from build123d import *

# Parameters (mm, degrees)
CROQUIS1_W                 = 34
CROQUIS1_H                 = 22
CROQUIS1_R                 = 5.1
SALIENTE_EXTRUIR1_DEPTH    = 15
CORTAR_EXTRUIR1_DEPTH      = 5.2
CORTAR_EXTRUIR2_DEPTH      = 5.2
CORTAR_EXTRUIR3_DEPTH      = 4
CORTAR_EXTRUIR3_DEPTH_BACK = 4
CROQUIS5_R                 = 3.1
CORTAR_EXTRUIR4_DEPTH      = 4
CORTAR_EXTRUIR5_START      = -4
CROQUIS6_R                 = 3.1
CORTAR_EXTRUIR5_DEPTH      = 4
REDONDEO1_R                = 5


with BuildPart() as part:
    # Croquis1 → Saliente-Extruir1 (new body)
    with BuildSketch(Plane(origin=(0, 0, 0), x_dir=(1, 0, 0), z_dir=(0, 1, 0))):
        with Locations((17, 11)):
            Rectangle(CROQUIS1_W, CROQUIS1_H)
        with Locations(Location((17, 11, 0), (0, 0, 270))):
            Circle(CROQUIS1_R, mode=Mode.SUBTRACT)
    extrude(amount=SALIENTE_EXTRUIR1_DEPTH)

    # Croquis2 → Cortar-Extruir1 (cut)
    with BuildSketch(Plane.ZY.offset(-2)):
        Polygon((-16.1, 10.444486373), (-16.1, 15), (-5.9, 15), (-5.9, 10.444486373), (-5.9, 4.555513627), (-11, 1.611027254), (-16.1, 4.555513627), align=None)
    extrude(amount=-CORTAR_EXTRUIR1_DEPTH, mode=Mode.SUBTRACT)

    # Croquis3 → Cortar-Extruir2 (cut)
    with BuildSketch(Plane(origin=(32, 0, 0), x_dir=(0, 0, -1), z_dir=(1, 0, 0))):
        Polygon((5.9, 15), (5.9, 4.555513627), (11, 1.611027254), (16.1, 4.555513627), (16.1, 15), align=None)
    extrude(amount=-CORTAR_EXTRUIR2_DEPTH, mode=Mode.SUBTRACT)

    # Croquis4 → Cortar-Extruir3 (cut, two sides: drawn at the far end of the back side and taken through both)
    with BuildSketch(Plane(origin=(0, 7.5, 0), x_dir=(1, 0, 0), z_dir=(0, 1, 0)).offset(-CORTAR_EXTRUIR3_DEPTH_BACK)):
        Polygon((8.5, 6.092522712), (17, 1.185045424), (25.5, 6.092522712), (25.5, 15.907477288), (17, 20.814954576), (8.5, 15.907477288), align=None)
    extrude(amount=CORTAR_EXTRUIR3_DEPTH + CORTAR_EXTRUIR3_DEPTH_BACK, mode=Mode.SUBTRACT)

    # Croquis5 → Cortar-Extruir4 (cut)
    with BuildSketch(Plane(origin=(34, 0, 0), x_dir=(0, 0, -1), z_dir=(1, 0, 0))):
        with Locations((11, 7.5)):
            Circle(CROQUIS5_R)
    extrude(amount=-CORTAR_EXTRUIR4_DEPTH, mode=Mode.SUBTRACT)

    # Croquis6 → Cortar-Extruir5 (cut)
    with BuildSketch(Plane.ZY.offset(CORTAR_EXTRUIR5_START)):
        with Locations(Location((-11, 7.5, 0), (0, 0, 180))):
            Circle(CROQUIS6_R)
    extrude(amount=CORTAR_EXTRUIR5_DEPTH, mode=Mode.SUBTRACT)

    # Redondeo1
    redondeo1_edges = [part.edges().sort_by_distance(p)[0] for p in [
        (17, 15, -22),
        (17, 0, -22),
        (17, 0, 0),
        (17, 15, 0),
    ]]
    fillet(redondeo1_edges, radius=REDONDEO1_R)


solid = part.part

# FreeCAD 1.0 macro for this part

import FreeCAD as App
import Part
import Sketcher
from FreeCAD import Vector
Q = App.Units.Quantity


def edges_at(feature, points):
    """Names of the edges that pass closest to the given points."""
    edges = feature.Shape.Edges
    near = lambda p: min(range(len(edges)), key=lambda i: edges[i].distToShape(Part.Vertex(*p))[0])
    return sorted({f"Edge{near(p) + 1}" for p in points})


def add_polygon(sketch, points):
    """Adds a closed chain of lines whose ends are joined by coincident constraints."""
    first, n = sketch.GeometryCount, len(points)
    for a, b in zip(points, points[1:] + points[:1]):
        sketch.addGeometry(Part.LineSegment(App.Vector(*a, 0), App.Vector(*b, 0)), False)
    for i in range(n):
        sketch.addConstraint(Sketcher.Constraint("Coincident", first + i, 2, first + (i + 1) % n, 1))

doc = App.newDocument("Part")
params = doc.addObject("Spreadsheet::Sheet", "Params")
for row, (alias, value) in enumerate([
    ("sketch1_diameter", "10.2 mm"),
    ("sketch1_width", "34 mm"),
    ("sketch1_height", "22 mm"),
    ("pad1_length", "15 mm"),
    ("sketch2_height", "10.2 mm"),
    ("pocket1_length", "5.2 mm"),
    ("sketch3_height", "10.2 mm"),
    ("pocket2_length", "5.2 mm"),
    ("pocket3_length", "4 mm"),
    ("pocket3_length2", "4 mm"),
    ("sketch5_diameter", "6.2 mm"),
    ("pocket4_length", "4 mm"),
    ("sketch6_diameter", "6.2 mm"),
    ("pocket5_length", "4 mm"),
    ("fillet_radius", "5 mm"),
], start=1):
    params.set(f"A{row}", alias)
    params.set(f"B{row}", "=" + value)
    params.setAlias(f"B{row}", alias)

body = doc.addObject("PartDesign::Body", "Body")

# Sketch on XZ plane
sketch1 = doc.addObject("Sketcher::SketchObject", "Sketch")
body.addObject(sketch1)
sketch1.AttachmentSupport = (doc.XZ_Plane, [""])
sketch1.MapMode = "FlatFace"
add_polygon(sketch1, [(0, -22), (0, 0), (34, 0), (34, -22)])  # lines 0-3
sketch1.addGeometry(Part.Circle(Vector(17, -11, 0), Vector(0, 0, 1), 5), False)  # 4
sketch1.addConstraint(Sketcher.Constraint("Vertical", 0))
sketch1.addConstraint(Sketcher.Constraint("Horizontal", 1))
sketch1.addConstraint(Sketcher.Constraint("Vertical", 2))
sketch1.addConstraint(Sketcher.Constraint("Horizontal", 3))
sketch1.addConstraint(Sketcher.Constraint("Coincident", 0, 2, -1, 1))
sketch1.addConstraint(Sketcher.Constraint("Diameter", 4, 10.2))
sketch1.addConstraint(Sketcher.Constraint("DistanceX", 1, 1, 1, 2, 34.0))
sketch1.addConstraint(Sketcher.Constraint("DistanceY", 0, 1, 0, 2, 22.0))
sketch1.addConstraint(Sketcher.Constraint("DistanceX", -1, 1, 4, 3, 17.0))
sketch1.addConstraint(Sketcher.Constraint("DistanceY", 4, 3, -1, 1, 11.0))
sketch1.setExpression("Constraints[9]", "Params.sketch1_diameter")
sketch1.setExpression("Constraints[10]", "Params.sketch1_width")
sketch1.setExpression("Constraints[11]", "Params.sketch1_height")
pad1 = doc.addObject("PartDesign::Pad", "Pad")
body.addObject(pad1)
pad1.Profile = sketch1
pad1.setExpression("Length", "Params.pad1_length")
pad1.Reversed = True

# Sketch on YZ plane
sketch2 = doc.addObject("Sketcher::SketchObject", "Sketch001")
body.addObject(sketch2)
sketch2.AttachmentSupport = (doc.YZ_Plane, [""])
sketch2.MapMode = "FlatFace"
sketch2.AttachmentOffset = App.Placement(Vector(0, 0, 2), App.Rotation())
add_polygon(sketch2, [(15, -16), (5, -16), (2, -11), (5, -6), (15, -6)])  # lines 0-4
sketch2.addConstraint(Sketcher.Constraint("Horizontal", 0))
sketch2.addConstraint(Sketcher.Constraint("Horizontal", 3))
sketch2.addConstraint(Sketcher.Constraint("Vertical", 4))
sketch2.addConstraint(Sketcher.Constraint("Vertical", 0, 2, 2, 2))
sketch2.addConstraint(Sketcher.Constraint("Equal", 1, 2))
sketch2.addConstraint(Sketcher.Constraint("Angle", 1, Q("120 deg")))
sketch2.addConstraint(Sketcher.Constraint("DistanceY", 4, 2, 4, 1, 10.2))
sketch2.addConstraint(Sketcher.Constraint("DistanceY", 1, 2, -1, 1, 11.0))
sketch2.addConstraint(Sketcher.Constraint("DistanceX", -1, 1, 3, 2, 15.0))
sketch2.addConstraint(Sketcher.Constraint("DistanceX", 0, 2, 0, 1, 10.444486))
sketch2.setExpression("Constraints[11]", "Params.sketch2_height")
pocket1 = doc.addObject("PartDesign::Pocket", "Pocket")
body.addObject(pocket1)
pocket1.Profile = sketch2
pocket1.setExpression("Length", "Params.pocket1_length")
pocket1.Reversed = True

# Sketch on YZ plane
sketch3 = doc.addObject("Sketcher::SketchObject", "Sketch002")
body.addObject(sketch3)
sketch3.AttachmentSupport = (doc.YZ_Plane, [""])
sketch3.MapMode = "FlatFace"
sketch3.AttachmentOffset = App.Placement(Vector(0, 0, 32), App.Rotation())
add_polygon(sketch3, [(15, -6), (5, -6), (2, -11), (5, -16), (15, -16)])  # lines 0-4
sketch3.addConstraint(Sketcher.Constraint("Horizontal", 0))
sketch3.addConstraint(Sketcher.Constraint("Horizontal", 3))
sketch3.addConstraint(Sketcher.Constraint("Vertical", 4))
sketch3.addConstraint(Sketcher.Constraint("Vertical", 0, 2, 2, 2))
sketch3.addConstraint(Sketcher.Constraint("Equal", 1, 2))
sketch3.addConstraint(Sketcher.Constraint("Angle", 1, Q("-120 deg")))
sketch3.addConstraint(Sketcher.Constraint("DistanceY", 4, 1, 4, 2, 10.2))
sketch3.addConstraint(Sketcher.Constraint("DistanceY", 1, 2, -1, 1, 11.0))
sketch3.addConstraint(Sketcher.Constraint("DistanceX", -1, 1, 3, 2, 15.0))
sketch3.addConstraint(Sketcher.Constraint("DistanceX", 0, 2, 0, 1, 10.444486))
sketch3.setExpression("Constraints[11]", "Params.sketch3_height")
pocket2 = doc.addObject("PartDesign::Pocket", "Pocket001")
body.addObject(pocket2)
pocket2.Profile = sketch3
pocket2.setExpression("Length", "Params.pocket2_length")

# Sketch on XZ plane
sketch4 = doc.addObject("Sketcher::SketchObject", "Sketch003")
body.addObject(sketch4)
sketch4.AttachmentSupport = (doc.XZ_Plane, [""])
sketch4.MapMode = "FlatFace"
sketch4.AttachmentOffset = App.Placement(Vector(0, 0, -7.5), App.Rotation())
add_polygon(sketch4, [(8, -6), (17, -1), (26, -6), (26, -16), (17, -21), (8, -16)])  # lines 0-5
sketch4.addConstraint(Sketcher.Constraint("Vertical", 2))
sketch4.addConstraint(Sketcher.Constraint("Vertical", 5))
sketch4.addConstraint(Sketcher.Constraint("Parallel", 0, 3))
sketch4.addConstraint(Sketcher.Constraint("Parallel", 1, 4))
sketch4.addConstraint(Sketcher.Constraint("Horizontal", 2, 2, 4, 2))
sketch4.addConstraint(Sketcher.Constraint("Horizontal", 1, 2, 5, 2))
sketch4.addConstraint(Sketcher.Constraint("Vertical", 0, 2, 3, 2))
sketch4.addConstraint(Sketcher.Constraint("Angle", 0, Q("30 deg")))
sketch4.addConstraint(Sketcher.Constraint("DistanceX", -1, 1, 0, 2, 17.0))
sketch4.addConstraint(Sketcher.Constraint("DistanceX", 4, 2, 2, 2, 17.0))
sketch4.addConstraint(Sketcher.Constraint("DistanceY", 2, 2, 2, 1, 9.814955))
sketch4.addConstraint(Sketcher.Constraint("DistanceY", 0, 2, -1, 1, 1.185045))
pocket3 = doc.addObject("PartDesign::Pocket", "Pocket002")
body.addObject(pocket3)
pocket3.Profile = sketch4
pocket3.Type = "TwoLengths"
pocket3.setExpression("Length", "Params.pocket3_length")
pocket3.setExpression("Length2", "Params.pocket3_length2")

# Sketch on YZ plane
sketch5 = doc.addObject("Sketcher::SketchObject", "Sketch004")
body.addObject(sketch5)
sketch5.AttachmentSupport = (doc.YZ_Plane, [""])
sketch5.MapMode = "FlatFace"
sketch5.AttachmentOffset = App.Placement(Vector(0, 0, 34), App.Rotation())
sketch5.addGeometry(Part.Circle(Vector(7.5, -11, 0), Vector(0, 0, 1), 3.1), False)
sketch5.addConstraint(Sketcher.Constraint("Diameter", 0, 6.2))
sketch5.addConstraint(Sketcher.Constraint("DistanceY", 0, 3, -1, 1, 11.0))
sketch5.addConstraint(Sketcher.Constraint("DistanceX", -1, 1, 0, 3, 7.5))
sketch5.setExpression("Constraints[0]", "Params.sketch5_diameter")
pocket4 = doc.addObject("PartDesign::Pocket", "Pocket003")
body.addObject(pocket4)
pocket4.Profile = sketch5
pocket4.setExpression("Length", "Params.pocket4_length")

# Sketch on YZ plane
sketch6 = doc.addObject("Sketcher::SketchObject", "Sketch005")
body.addObject(sketch6)
sketch6.AttachmentSupport = (doc.YZ_Plane, [""])
sketch6.MapMode = "FlatFace"
sketch6.AttachmentOffset = App.Placement(Vector(0, 0, 4), App.Rotation())
sketch6.addGeometry(Part.Circle(Vector(7.5, -11, 0), Vector(0, 0, 1), 3.1), False)
sketch6.addConstraint(Sketcher.Constraint("Diameter", 0, 6.2))
sketch6.addConstraint(Sketcher.Constraint("DistanceY", 0, 3, -1, 1, 11.0))
sketch6.addConstraint(Sketcher.Constraint("DistanceX", -1, 1, 0, 3, 7.5))
sketch6.setExpression("Constraints[0]", "Params.sketch6_diameter")
pocket5 = doc.addObject("PartDesign::Pocket", "Pocket004")
body.addObject(pocket5)
pocket5.Profile = sketch6
pocket5.setExpression("Length", "Params.pocket5_length")
doc.recompute()

fillet = doc.addObject("PartDesign::Fillet", "Fillet")
body.addObject(fillet)
fillet.Base = (pocket5, edges_at(pocket5, [
    (17, 15, -22),
    (17, 0, -22),
    (17, 0, 0),
    (17, 15, 0),
]))
fillet.setExpression("Radius", "Params.fillet_radius")

doc.recompute()
